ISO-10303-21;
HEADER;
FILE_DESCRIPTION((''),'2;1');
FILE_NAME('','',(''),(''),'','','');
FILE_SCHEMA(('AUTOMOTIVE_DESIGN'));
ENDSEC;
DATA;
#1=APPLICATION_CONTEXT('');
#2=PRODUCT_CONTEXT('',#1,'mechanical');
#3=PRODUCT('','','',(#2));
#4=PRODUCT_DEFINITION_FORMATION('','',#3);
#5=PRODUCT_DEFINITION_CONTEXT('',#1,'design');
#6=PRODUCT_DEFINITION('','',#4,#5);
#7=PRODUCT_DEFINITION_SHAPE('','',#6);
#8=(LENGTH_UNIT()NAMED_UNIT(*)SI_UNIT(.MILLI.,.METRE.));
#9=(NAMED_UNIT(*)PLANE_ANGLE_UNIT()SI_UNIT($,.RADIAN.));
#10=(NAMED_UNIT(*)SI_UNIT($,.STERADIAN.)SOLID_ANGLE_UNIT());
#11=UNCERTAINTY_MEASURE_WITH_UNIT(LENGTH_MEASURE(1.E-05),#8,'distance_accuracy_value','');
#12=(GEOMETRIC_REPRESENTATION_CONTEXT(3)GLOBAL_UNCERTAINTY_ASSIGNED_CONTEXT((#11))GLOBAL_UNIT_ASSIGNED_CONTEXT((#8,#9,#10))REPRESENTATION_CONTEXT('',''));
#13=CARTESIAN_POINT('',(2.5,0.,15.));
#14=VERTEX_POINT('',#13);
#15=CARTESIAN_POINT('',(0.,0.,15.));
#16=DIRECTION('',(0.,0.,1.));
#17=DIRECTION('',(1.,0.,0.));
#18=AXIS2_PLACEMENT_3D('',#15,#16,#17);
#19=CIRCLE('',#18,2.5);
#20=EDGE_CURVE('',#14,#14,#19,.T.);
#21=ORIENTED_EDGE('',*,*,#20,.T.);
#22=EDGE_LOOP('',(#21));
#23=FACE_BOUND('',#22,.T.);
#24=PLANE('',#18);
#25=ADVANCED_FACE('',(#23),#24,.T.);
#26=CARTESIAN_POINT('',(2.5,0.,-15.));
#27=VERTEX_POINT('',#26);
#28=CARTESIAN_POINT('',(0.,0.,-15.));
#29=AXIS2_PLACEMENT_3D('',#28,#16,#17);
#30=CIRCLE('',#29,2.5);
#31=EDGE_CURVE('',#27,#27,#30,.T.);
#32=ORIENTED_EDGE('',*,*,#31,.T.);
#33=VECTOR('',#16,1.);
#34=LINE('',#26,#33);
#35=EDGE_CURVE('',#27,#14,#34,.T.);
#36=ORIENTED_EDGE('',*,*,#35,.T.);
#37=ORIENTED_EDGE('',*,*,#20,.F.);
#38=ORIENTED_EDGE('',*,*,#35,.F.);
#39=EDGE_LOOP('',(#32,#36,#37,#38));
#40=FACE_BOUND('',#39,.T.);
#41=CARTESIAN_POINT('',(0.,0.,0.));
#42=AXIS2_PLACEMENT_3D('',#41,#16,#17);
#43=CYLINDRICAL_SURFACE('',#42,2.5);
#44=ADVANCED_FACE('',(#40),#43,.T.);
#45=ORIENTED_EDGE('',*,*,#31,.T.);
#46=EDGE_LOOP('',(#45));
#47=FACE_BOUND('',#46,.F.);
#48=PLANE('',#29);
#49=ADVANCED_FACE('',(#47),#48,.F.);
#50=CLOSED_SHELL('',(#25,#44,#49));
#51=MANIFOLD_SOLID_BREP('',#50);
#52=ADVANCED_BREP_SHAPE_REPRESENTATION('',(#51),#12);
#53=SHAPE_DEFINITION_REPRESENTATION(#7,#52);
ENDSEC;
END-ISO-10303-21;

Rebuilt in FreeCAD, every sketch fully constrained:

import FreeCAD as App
import Part
import Sketcher
Q = App.Units.Quantity

doc = App.newDocument("Part")
body = doc.addObject("PartDesign::Body", "Body")

# Sketch on XY plane
sketch1 = body.newObject("Sketcher::SketchObject", "Sketch")
sketch1.AttachmentSupport = (doc.getObject("XY_Plane"), [""])
sketch1.MapMode = "FlatFace"
sketch1.addGeometry(Part.Circle(App.Vector(0, 0, 0), App.Vector(0, 0, 1), 2.5), False)
sketch1.addConstraint(Sketcher.Constraint("Coincident", 0, 3, -1, 1))
sketch1.addConstraint(Sketcher.Constraint("Diameter", 0, Q("5 mm")))
pad1 = body.newObject("PartDesign::Pad", "Pad")
pad1.Profile = sketch1
pad1.Length = 30
pad1.Midplane = True

doc.recompute()
